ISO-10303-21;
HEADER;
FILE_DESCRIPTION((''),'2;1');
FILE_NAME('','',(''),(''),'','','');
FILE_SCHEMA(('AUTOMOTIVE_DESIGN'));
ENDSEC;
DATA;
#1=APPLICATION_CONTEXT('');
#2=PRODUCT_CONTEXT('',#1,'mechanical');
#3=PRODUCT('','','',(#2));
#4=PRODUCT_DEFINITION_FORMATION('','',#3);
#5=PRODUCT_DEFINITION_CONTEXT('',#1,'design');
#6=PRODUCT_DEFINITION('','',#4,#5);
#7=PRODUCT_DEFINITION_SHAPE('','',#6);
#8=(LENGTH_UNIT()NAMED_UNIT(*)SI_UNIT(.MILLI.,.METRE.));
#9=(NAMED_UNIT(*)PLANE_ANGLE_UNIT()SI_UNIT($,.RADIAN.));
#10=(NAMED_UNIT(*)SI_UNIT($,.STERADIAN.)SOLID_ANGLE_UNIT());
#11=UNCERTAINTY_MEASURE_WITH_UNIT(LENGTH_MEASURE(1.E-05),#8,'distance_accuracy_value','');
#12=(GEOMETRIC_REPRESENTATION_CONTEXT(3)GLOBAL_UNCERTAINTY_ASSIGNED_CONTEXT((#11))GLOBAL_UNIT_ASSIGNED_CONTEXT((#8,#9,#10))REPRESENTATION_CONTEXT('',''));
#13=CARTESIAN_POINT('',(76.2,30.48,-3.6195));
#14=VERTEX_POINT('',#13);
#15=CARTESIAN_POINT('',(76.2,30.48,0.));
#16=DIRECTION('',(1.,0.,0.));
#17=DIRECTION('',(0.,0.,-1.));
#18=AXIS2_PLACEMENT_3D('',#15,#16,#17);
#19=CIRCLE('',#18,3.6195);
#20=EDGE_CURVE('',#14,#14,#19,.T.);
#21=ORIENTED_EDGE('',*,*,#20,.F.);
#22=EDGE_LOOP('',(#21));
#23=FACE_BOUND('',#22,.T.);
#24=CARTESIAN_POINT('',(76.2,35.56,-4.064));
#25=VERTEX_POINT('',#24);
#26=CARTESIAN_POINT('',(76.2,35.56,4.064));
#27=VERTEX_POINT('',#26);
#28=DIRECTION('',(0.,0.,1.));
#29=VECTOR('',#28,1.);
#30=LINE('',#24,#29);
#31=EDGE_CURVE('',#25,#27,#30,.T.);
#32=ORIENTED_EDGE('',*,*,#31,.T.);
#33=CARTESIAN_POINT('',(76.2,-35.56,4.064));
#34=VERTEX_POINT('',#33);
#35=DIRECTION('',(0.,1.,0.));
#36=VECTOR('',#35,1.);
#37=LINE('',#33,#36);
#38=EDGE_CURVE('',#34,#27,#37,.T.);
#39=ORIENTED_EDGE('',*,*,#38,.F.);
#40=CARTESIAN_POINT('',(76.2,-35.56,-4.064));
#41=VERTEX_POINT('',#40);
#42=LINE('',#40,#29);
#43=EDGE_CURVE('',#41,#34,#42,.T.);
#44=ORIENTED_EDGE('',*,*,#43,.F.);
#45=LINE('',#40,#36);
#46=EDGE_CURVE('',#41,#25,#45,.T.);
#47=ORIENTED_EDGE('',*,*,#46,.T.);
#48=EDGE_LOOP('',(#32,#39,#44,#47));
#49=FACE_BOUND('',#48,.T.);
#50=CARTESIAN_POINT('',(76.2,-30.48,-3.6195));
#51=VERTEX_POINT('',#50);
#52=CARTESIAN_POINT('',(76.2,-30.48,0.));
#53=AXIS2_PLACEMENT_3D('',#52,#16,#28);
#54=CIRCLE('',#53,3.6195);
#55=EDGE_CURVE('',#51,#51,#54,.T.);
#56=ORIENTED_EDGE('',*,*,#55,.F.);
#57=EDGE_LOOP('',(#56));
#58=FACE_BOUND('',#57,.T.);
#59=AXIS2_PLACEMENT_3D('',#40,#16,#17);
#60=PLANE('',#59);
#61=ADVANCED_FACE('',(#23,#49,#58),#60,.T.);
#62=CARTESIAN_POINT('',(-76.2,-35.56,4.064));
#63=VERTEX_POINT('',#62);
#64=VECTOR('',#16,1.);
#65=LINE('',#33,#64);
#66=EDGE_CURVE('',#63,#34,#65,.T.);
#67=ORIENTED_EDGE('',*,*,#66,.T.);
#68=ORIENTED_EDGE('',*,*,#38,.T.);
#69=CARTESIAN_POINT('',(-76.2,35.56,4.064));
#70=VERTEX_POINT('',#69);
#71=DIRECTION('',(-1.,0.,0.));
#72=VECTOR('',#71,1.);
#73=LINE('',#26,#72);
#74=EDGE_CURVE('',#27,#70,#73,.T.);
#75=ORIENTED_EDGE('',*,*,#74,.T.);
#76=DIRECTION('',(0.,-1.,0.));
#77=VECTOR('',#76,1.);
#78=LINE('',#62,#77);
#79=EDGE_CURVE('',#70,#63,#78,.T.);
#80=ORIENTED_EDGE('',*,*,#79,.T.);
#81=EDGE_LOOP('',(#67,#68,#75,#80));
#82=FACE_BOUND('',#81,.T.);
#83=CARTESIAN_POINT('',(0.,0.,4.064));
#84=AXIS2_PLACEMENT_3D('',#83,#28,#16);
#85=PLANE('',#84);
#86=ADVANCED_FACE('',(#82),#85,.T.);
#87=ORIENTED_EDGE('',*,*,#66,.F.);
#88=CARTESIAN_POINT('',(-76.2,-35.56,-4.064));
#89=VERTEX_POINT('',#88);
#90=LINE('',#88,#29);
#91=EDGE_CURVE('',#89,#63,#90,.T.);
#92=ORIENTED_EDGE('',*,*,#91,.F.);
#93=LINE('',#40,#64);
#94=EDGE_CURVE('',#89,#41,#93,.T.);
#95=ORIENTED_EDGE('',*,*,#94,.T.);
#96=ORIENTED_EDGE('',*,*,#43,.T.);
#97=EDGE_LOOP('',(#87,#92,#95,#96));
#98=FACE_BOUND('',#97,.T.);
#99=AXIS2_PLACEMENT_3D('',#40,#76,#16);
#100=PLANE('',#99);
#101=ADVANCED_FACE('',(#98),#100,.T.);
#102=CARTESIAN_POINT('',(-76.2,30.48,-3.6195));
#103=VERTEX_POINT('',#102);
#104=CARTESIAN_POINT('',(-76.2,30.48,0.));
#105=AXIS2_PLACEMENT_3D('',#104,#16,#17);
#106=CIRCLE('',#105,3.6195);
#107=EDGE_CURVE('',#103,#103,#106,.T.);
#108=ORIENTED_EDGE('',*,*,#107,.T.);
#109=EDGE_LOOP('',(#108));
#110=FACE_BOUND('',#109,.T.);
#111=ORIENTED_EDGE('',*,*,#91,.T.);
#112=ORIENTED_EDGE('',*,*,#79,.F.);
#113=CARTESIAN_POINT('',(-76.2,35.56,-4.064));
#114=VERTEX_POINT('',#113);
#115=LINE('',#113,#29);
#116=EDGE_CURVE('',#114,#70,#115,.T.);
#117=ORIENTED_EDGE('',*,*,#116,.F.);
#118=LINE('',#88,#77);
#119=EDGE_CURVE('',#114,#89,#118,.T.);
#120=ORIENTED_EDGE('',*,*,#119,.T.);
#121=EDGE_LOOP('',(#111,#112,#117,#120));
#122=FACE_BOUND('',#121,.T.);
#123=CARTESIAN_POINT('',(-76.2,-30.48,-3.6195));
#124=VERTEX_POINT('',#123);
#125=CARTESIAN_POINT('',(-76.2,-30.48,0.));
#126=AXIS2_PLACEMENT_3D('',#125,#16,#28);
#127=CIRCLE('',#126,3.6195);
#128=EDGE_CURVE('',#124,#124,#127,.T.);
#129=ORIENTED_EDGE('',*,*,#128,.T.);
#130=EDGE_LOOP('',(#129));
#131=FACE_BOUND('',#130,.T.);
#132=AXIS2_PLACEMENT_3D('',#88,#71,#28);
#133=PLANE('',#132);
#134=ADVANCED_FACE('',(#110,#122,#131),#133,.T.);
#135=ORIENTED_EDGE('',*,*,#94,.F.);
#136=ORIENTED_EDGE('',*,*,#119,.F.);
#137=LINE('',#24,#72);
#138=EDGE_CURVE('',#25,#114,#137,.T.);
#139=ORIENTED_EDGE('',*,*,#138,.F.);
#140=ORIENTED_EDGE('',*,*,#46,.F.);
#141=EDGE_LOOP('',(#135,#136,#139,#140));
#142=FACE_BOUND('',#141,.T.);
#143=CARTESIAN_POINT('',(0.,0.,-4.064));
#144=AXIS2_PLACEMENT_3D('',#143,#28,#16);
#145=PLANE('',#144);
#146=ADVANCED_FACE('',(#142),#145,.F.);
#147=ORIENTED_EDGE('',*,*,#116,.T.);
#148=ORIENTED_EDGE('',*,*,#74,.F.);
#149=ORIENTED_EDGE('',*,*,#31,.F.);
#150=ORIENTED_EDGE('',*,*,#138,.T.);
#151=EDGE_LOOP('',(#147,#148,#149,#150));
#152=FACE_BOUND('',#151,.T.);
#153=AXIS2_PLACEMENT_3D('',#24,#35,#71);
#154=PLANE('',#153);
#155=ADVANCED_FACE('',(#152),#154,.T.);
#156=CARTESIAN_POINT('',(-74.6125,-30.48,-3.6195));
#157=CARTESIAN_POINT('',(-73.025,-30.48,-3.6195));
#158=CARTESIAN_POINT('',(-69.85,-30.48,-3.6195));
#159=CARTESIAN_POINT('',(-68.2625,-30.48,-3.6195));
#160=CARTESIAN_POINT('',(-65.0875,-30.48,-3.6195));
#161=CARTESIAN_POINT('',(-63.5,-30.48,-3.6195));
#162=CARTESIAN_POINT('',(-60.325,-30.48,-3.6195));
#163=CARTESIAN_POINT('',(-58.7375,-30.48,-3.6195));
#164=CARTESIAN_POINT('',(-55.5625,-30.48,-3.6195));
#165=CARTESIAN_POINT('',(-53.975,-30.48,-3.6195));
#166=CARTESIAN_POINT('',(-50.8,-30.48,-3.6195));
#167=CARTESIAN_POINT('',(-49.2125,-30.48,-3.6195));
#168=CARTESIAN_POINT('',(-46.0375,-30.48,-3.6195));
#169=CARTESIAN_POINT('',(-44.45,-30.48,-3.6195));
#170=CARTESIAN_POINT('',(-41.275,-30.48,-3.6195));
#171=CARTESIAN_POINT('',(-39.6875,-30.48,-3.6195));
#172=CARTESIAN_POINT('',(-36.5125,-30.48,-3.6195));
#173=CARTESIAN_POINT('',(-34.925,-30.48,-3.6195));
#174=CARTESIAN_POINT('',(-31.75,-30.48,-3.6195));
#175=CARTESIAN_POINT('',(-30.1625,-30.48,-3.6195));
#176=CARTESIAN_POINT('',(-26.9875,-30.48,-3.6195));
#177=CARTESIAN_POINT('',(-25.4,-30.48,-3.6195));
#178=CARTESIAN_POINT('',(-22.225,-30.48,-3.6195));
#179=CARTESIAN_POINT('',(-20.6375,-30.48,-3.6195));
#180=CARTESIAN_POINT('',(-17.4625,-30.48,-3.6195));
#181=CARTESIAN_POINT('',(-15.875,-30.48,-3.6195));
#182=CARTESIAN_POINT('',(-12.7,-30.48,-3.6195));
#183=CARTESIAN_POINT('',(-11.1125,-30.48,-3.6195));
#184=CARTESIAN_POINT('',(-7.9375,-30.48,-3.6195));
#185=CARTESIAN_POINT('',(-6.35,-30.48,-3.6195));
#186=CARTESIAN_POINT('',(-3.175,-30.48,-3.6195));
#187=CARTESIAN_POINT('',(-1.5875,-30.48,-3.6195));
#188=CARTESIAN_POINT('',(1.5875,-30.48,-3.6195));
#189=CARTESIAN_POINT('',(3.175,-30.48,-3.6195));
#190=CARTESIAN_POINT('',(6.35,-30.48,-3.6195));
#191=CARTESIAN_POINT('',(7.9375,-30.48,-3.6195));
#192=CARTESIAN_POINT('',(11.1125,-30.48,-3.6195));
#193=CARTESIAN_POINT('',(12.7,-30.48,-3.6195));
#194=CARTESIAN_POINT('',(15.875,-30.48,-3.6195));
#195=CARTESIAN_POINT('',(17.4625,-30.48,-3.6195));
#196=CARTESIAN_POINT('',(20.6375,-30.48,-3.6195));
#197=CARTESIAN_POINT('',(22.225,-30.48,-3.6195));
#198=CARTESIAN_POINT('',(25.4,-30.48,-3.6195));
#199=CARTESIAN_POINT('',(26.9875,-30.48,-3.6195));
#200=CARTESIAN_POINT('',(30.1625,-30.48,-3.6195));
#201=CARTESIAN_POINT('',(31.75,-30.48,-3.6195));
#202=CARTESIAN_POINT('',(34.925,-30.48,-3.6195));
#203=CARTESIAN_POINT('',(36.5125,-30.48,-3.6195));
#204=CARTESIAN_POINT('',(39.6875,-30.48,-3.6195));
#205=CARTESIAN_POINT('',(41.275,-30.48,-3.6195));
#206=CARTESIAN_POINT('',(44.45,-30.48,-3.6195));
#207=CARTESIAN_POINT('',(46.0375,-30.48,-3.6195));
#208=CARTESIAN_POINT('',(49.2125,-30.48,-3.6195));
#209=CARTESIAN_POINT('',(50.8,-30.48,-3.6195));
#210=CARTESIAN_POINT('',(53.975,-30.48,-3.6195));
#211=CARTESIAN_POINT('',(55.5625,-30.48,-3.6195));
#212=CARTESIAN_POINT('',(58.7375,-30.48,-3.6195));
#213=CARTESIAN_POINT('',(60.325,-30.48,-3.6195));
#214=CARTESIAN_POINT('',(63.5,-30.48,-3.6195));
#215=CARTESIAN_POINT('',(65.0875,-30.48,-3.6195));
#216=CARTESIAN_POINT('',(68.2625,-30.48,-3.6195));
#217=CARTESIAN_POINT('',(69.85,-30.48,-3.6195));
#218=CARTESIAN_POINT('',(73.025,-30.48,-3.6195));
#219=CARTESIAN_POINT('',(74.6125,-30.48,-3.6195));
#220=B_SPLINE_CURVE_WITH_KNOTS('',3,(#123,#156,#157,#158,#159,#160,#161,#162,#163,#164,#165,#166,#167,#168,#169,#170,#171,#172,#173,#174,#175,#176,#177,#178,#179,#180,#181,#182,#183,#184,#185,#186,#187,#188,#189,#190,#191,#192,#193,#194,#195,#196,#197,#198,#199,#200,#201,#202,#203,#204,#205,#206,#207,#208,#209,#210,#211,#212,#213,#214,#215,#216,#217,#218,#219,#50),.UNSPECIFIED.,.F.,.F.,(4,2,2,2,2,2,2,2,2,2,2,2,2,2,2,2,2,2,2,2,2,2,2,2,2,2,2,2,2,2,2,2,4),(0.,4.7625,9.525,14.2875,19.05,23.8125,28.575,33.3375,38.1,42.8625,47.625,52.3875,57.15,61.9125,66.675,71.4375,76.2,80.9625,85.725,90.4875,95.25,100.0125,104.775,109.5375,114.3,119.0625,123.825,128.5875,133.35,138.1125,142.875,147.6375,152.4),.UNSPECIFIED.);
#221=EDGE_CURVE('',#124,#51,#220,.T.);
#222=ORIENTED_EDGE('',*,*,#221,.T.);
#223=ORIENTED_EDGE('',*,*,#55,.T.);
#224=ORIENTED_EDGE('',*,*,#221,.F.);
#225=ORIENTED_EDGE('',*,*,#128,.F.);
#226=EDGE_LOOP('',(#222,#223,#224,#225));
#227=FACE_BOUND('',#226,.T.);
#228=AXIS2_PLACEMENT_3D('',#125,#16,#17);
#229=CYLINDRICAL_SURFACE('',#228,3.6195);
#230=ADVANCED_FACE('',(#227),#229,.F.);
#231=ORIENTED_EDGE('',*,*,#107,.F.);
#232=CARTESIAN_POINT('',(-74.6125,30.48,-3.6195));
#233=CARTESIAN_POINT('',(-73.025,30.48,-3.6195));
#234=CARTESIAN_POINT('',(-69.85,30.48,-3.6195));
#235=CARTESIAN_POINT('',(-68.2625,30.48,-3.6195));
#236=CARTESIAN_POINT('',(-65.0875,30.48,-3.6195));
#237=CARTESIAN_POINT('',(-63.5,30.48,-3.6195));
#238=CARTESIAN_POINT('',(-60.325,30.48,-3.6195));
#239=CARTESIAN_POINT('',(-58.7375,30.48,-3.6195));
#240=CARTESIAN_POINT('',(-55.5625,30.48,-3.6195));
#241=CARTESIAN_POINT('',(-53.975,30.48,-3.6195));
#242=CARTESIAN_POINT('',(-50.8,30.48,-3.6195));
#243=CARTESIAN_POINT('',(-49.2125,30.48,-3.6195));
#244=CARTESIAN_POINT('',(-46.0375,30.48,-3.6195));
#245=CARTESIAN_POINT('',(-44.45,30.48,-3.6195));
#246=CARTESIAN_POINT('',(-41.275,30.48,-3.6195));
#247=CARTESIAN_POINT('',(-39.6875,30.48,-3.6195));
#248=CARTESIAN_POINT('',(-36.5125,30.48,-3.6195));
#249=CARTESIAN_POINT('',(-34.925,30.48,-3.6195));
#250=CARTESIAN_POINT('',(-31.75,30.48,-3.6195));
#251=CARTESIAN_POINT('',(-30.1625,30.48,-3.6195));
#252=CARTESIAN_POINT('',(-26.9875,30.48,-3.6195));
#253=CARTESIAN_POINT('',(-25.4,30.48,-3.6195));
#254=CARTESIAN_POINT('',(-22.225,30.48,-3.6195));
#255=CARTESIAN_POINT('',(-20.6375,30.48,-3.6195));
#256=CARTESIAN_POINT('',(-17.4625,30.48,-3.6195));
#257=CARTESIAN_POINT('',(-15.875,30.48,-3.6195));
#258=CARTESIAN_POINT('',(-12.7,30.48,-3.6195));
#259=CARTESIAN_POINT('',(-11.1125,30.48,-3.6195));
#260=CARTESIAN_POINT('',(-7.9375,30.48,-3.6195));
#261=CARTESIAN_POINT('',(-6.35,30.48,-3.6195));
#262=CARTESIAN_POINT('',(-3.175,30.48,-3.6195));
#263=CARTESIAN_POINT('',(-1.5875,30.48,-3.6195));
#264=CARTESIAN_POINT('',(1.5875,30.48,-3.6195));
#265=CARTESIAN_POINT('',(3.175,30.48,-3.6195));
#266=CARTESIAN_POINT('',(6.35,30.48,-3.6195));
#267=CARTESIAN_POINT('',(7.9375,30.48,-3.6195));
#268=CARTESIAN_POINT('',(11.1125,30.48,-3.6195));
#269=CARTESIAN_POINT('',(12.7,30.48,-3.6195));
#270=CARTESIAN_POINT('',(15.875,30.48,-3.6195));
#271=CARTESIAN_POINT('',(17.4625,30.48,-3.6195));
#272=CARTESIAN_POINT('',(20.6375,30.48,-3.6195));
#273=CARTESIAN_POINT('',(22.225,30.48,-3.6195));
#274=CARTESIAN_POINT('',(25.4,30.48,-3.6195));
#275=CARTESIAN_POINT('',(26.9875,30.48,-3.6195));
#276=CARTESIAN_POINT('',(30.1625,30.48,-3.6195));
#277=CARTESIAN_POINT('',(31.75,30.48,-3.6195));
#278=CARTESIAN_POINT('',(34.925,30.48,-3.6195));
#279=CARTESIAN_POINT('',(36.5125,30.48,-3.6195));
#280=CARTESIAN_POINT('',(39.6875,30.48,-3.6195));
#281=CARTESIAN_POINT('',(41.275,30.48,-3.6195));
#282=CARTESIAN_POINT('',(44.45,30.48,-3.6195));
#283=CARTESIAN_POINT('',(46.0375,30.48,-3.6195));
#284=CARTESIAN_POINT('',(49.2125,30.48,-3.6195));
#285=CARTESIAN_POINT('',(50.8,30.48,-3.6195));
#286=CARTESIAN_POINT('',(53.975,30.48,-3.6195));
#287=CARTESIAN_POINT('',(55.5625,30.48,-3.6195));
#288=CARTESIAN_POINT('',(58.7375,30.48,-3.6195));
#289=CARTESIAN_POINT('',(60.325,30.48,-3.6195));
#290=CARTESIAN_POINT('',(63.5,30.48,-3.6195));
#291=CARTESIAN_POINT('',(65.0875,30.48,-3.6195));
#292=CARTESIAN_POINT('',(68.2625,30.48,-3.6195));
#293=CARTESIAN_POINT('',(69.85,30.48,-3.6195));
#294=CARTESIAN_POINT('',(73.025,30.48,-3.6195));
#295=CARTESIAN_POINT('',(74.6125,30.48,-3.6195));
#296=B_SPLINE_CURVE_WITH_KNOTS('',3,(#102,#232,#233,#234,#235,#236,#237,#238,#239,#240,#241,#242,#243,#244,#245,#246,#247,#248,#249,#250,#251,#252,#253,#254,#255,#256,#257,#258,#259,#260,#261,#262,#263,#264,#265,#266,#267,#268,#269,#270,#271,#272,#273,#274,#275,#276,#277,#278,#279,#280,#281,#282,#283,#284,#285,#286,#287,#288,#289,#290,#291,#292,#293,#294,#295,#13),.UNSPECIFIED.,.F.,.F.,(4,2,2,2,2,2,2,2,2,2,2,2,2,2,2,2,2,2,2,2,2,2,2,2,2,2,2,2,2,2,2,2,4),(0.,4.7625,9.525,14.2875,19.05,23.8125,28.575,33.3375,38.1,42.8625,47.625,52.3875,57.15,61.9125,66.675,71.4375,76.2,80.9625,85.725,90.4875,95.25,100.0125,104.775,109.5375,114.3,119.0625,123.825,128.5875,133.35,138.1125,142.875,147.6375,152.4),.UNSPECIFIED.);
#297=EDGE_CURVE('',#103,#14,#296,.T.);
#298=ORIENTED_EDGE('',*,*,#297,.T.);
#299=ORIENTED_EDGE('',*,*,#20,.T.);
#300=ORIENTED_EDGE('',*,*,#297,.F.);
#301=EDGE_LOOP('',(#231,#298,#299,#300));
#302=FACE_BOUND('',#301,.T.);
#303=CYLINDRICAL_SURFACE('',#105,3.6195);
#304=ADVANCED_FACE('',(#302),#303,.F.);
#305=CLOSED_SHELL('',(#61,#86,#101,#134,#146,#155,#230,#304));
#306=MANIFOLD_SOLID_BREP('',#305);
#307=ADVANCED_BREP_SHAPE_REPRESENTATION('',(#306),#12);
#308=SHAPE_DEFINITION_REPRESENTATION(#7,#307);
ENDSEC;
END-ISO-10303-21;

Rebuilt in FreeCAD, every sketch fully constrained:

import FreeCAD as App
import Part
import Sketcher
Q = App.Units.Quantity

doc = App.newDocument("Part")
body = doc.addObject("PartDesign::Body", "Body")

# Sketch on XY plane
sketch1 = body.newObject("Sketcher::SketchObject", "Sketch")
sketch1.AttachmentSupport = (doc.getObject("XY_Plane"), [""])
sketch1.MapMode = "FlatFace"
sketch1.addGeometry([
    Part.LineSegment(App.Vector(-76, 36, 0), App.Vector(-76, -36, 0)),
    Part.LineSegment(App.Vector(-76, -36, 0), App.Vector(76, -36, 0)),
    Part.LineSegment(App.Vector(76, -36, 0), App.Vector(76, 36, 0)),
    Part.LineSegment(App.Vector(76, 36, 0), App.Vector(-76, 36, 0)),
], False)
sketch1.addConstraint([
    Sketcher.Constraint("Coincident", 0, 2, 1, 1),
    Sketcher.Constraint("Coincident", 1, 2, 2, 1),
    Sketcher.Constraint("Coincident", 2, 2, 3, 1),
    Sketcher.Constraint("Coincident", 3, 2, 0, 1),
    Sketcher.Constraint("Vertical", 0),
    Sketcher.Constraint("Horizontal", 1),
    Sketcher.Constraint("Vertical", 2),
    Sketcher.Constraint("Horizontal", 3),
    Sketcher.Constraint("Symmetric", 0, 2, 2, 2, -1, 1),
    Sketcher.Constraint("DistanceX", 1, 1, 1, 2, Q("6 in")),
    Sketcher.Constraint("DistanceY", 0, 2, 0, 1, Q("2.8 in")),
])
pad1 = body.newObject("PartDesign::Pad", "Pad")
pad1.Profile = sketch1
pad1.Type = "TwoLengths"
pad1.Length = Q("0.16 in")
pad1.Length2 = Q("0.16 in")

# Sketch on YZ plane
sketch2 = body.newObject("Sketcher::SketchObject", "Sketch001")
sketch2.AttachmentSupport = (doc.getObject("YZ_Plane"), [""])
sketch2.MapMode = "FlatFace"
sketch2.AttachmentOffset = App.Placement(App.Vector(0, 0, 3 * 25.4), App.Rotation())
sketch2.addGeometry([
    Part.Circle(App.Vector(30.5, 0, 0), App.Vector(0, 0, 1), 3.6),
    Part.Circle(App.Vector(-30.5, 0, 0), App.Vector(0, 0, 1), 3.6),
], False)
sketch2.addConstraint([
    Sketcher.Constraint("Equal", 0, 1),
    Sketcher.Constraint("Symmetric", 0, 3, 1, 3, -1, 1),
    Sketcher.Constraint("PointOnObject", 0, 3, -1),
    Sketcher.Constraint("Diameter", 0, Q("0.285 in")),
    Sketcher.Constraint("DistanceX", -1, 1, 0, 3, Q("1.2 in")),
])
pocket1 = body.newObject("PartDesign::Pocket", "Pocket")
pocket1.Profile = sketch2
pocket1.Type = "ThroughAll"

doc.recompute()
